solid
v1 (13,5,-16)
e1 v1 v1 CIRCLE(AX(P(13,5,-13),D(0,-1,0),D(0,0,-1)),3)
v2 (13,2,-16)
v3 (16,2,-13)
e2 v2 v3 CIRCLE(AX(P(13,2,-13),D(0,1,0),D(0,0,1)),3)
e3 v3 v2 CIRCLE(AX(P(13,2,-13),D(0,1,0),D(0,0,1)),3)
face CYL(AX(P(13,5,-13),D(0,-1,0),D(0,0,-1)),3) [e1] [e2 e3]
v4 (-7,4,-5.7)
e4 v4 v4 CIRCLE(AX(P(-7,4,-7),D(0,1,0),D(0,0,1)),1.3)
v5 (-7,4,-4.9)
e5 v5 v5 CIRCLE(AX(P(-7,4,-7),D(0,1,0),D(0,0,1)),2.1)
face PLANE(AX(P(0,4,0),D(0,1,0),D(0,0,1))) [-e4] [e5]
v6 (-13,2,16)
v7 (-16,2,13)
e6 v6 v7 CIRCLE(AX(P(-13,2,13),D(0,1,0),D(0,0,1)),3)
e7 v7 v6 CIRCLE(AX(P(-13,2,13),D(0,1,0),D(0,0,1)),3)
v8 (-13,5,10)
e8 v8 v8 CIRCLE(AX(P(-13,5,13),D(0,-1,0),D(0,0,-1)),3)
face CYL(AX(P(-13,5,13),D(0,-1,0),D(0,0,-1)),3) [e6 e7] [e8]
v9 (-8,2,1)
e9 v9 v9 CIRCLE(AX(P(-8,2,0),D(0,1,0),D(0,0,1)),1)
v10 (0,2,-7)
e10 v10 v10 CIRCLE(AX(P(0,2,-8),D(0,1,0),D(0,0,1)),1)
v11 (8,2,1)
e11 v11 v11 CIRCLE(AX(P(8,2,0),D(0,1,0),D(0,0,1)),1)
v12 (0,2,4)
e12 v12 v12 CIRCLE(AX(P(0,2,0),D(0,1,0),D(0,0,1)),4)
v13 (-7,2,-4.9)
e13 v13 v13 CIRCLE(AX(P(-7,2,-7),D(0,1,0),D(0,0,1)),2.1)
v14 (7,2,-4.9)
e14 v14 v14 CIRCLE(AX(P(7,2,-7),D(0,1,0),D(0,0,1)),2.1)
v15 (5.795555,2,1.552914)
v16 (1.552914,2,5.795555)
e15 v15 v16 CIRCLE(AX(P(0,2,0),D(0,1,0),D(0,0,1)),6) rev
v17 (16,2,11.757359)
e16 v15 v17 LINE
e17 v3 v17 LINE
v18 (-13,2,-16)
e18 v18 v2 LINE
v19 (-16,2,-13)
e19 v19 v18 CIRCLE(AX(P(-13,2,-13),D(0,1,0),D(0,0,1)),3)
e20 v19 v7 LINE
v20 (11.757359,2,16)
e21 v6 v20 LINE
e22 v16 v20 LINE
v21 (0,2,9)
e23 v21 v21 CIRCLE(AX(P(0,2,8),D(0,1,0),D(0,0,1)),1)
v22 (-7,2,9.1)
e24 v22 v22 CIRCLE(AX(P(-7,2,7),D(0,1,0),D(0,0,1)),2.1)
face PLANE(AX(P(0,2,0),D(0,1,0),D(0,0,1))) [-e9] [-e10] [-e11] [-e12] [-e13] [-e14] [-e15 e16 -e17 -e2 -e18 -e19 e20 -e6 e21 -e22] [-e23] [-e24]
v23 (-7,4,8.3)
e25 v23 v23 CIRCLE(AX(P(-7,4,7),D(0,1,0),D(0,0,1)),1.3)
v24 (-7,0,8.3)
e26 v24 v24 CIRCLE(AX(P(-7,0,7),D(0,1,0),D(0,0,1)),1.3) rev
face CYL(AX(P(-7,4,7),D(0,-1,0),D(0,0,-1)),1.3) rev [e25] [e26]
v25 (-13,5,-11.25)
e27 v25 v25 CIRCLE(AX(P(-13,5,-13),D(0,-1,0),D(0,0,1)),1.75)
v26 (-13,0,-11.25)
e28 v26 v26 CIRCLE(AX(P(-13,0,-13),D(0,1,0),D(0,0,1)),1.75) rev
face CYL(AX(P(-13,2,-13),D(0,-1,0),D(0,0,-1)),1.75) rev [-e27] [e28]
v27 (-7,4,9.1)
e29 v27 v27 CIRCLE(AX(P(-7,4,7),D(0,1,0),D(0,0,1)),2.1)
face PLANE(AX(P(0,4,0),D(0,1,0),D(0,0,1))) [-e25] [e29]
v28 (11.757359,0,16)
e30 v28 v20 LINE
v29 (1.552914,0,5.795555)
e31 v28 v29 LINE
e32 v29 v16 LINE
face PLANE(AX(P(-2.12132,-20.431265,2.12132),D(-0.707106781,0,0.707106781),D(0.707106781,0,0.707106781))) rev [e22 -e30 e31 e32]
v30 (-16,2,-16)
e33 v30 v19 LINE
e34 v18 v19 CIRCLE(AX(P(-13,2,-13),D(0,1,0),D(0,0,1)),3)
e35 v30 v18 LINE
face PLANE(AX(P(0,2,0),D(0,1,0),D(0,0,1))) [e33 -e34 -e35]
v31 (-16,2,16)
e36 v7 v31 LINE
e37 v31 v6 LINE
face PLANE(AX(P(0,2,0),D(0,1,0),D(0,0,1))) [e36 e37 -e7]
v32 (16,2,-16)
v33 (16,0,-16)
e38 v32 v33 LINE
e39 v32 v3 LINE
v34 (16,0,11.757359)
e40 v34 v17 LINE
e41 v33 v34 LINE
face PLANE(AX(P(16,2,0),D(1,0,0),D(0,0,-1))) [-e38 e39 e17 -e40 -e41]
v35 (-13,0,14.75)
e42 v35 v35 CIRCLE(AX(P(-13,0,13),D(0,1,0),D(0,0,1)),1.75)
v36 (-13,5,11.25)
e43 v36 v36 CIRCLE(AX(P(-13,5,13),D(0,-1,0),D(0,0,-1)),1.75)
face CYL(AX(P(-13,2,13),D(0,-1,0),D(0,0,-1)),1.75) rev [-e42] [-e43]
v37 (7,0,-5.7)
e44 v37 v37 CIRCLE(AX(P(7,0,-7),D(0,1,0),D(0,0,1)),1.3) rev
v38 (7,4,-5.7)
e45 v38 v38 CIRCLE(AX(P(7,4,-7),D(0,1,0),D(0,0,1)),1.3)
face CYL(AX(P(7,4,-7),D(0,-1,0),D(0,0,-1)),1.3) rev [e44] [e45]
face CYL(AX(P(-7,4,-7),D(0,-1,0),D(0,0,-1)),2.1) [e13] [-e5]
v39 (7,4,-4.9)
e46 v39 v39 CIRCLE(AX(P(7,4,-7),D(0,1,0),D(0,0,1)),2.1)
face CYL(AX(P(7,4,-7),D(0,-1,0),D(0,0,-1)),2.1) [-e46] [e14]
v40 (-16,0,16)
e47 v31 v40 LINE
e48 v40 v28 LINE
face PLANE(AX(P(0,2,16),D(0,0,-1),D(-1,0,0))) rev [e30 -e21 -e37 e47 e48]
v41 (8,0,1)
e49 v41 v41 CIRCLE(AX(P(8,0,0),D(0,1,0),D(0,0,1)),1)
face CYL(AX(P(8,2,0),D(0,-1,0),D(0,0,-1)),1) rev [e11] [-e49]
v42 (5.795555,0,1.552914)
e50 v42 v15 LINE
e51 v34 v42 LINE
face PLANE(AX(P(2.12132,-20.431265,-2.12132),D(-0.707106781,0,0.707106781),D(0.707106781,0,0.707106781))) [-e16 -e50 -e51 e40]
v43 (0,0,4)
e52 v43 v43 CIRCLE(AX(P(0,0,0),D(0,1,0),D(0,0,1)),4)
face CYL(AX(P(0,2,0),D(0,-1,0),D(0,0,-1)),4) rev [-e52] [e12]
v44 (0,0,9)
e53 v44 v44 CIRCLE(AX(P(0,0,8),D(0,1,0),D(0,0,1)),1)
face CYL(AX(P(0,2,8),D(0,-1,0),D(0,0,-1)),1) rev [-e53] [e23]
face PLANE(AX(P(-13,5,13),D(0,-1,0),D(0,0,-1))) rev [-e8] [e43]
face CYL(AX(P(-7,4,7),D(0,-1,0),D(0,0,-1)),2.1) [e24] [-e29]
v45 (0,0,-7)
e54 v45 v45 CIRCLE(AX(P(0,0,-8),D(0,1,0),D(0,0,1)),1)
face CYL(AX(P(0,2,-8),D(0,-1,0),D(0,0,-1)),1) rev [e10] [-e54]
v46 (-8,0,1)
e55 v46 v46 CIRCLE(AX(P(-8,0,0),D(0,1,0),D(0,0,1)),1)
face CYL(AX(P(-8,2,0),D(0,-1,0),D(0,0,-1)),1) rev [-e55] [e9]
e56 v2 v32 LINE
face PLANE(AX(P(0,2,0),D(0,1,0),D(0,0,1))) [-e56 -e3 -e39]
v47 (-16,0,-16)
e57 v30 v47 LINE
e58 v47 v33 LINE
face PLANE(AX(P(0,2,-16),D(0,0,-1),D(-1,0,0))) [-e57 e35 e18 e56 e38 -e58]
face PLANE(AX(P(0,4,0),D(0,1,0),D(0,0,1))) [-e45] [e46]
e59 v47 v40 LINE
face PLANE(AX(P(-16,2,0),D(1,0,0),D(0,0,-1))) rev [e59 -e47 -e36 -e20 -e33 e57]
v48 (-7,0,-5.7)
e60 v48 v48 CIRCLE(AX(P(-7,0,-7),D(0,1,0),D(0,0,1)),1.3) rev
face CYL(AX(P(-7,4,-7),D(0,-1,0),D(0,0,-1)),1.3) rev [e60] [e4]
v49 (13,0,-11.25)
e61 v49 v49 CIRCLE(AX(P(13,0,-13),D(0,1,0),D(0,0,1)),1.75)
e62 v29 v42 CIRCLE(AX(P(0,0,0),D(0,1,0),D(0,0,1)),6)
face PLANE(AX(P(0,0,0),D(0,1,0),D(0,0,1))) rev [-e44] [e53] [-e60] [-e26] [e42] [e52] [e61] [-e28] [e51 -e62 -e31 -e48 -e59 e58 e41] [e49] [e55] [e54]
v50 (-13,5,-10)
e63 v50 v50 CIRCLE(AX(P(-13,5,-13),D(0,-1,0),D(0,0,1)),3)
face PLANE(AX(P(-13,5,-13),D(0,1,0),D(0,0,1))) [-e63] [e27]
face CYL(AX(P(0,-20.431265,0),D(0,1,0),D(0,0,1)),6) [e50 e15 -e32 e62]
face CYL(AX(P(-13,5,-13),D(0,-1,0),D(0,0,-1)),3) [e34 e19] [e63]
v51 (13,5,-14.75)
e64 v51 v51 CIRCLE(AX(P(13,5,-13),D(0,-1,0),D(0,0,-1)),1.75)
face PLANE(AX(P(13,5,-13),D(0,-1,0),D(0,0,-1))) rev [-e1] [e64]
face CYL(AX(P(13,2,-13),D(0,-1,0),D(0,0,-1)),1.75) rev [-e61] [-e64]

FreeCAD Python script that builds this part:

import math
import FreeCAD as App
import Part
import Sketcher
from FreeCAD import Vector
Q = App.Units.Quantity

doc = App.newDocument("Part")
body = doc.addObject("PartDesign::Body", "Body")

sketch1 = body.newObject("Sketcher::SketchObject", "Sketch")
sketch1.AttachmentSupport = (doc.getObject("XZ_Plane"), [""])
sketch1.MapMode = "FlatFace"
sketch1.addGeometry([
    Part.LineSegment(Vector(-16, -16, 0), Vector(-16, 16, 0)),
    Part.LineSegment(Vector(-16, 16, 0), Vector(16, 16, 0)),
    Part.LineSegment(Vector(16, 16, 0), Vector(16, -16, 0)),
    Part.LineSegment(Vector(16, -16, 0), Vector(-16, -16, 0)),
    Part.Circle(Vector(-13, 13, 0), Vector(0, 0, 1), 1.8),
    Part.Circle(Vector(0, 8, 0), Vector(0, 0, 1), 1),
    Part.Circle(Vector(13, 13, 0), Vector(0, 0, 1), 1.8),
    Part.Circle(Vector(-8, 0, 0), Vector(0, 0, 1), 1),
    Part.Circle(Vector(-13, -13, 0), Vector(0, 0, 1), 1.8),
    Part.Circle(Vector(0, 0, 0), Vector(0, 0, 1), 4),
    Part.Circle(Vector(8, 0, 0), Vector(0, 0, 1), 1),
    Part.Circle(Vector(0, -8, 0), Vector(0, 0, 1), 1),
    Part.Circle(Vector(13, -13, 0), Vector(0, 0, 1), 1.8),
], False)
sketch1.addConstraint([
    Sketcher.Constraint("Coincident", 0, 2, 1, 1),
    Sketcher.Constraint("Coincident", 1, 2, 2, 1),
    Sketcher.Constraint("Coincident", 2, 2, 3, 1),
    Sketcher.Constraint("Coincident", 3, 2, 0, 1),
    Sketcher.Constraint("Vertical", 0),
    Sketcher.Constraint("Horizontal", 1),
    Sketcher.Constraint("Vertical", 2),
    Sketcher.Constraint("Horizontal", 3),
    Sketcher.Constraint("Coincident", 9, 3, -1, 1),
    Sketcher.Constraint("Equal", 4, 6),
    Sketcher.Constraint("Equal", 5, 7),
    Sketcher.Constraint("Equal", 6, 8),
    Sketcher.Constraint("Equal", 7, 10),
    Sketcher.Constraint("Equal", 10, 11),
    Sketcher.Constraint("Equal", 8, 12),
    Sketcher.Constraint("Symmetric", 6, 3, 8, 3, -1, 1),
    Sketcher.Constraint("Symmetric", 7, 3, 10, 3, -1, 1),
    Sketcher.Constraint("Symmetric", 5, 3, 11, 3, -1, 1),
    Sketcher.Constraint("Symmetric", 4, 3, 12, 3, -1, 1),
    Sketcher.Constraint("Symmetric", 0, 2, 2, 2, -1, 1),
    Sketcher.Constraint("Symmetric", 4, 3, 6, 3, -2),
    Sketcher.Constraint("PointOnObject", 5, 3, -2),
    Sketcher.Constraint("PointOnObject", 7, 3, -1),
    Sketcher.Constraint("Equal", 3, 0),
    Sketcher.Constraint("Diameter", 5, Q("2 mm")),
    Sketcher.Constraint("Diameter", 9, Q("8 mm")),
    Sketcher.Constraint("Diameter", 4, Q("3.5 mm")),
    Sketcher.Constraint("DistanceX", 1, 1, 1, 2, Q("32 mm")),
    Sketcher.Constraint("DistanceX", 4, 3, -1, 1, Q("13 mm")),
    Sketcher.Constraint("DistanceY", -1, 1, 4, 3, Q("13 mm")),
    Sketcher.Constraint("DistanceY", -1, 1, 5, 3, Q("8 mm")),
    Sketcher.Constraint("DistanceX", 7, 3, -1, 1, Q("8 mm")),
])
pad1 = body.newObject("PartDesign::Pad", "Pad")
pad1.Profile = sketch1
pad1.Length = 2
pad1.Reversed = True

sketch2 = body.newObject("Sketcher::SketchObject", "Sketch001")
sketch2.AttachmentSupport = (doc.getObject("XZ_Plane"), [""])
sketch2.MapMode = "FlatFace"
sketch2.AttachmentOffset = App.Placement(Vector(0, 0, -2), App.Rotation())
sketch2.addGeometry([
    Part.Circle(Vector(-7, 7, 0), Vector(0, 0, 1), 2.1),
    Part.Circle(Vector(-7, 7, 0), Vector(0, 0, 1), 1.3),
    Part.Circle(Vector(-7, -7, 0), Vector(0, 0, 1), 2.1),
    Part.Circle(Vector(-7, -7, 0), Vector(0, 0, 1), 1.3),
    Part.Circle(Vector(7, -7, 0), Vector(0, 0, 1), 2.1),
    Part.Circle(Vector(7, -7, 0), Vector(0, 0, 1), 1.3),
], False)
sketch2.addConstraint([
    Sketcher.Constraint("Coincident", 1, 3, 0, 3),
    Sketcher.Constraint("Coincident", 3, 3, 2, 3),
    Sketcher.Constraint("Coincident", 5, 3, 4, 3),
    Sketcher.Constraint("Equal", 0, 2),
    Sketcher.Constraint("Equal", 1, 3),
    Sketcher.Constraint("Equal", 2, 4),
    Sketcher.Constraint("Equal", 3, 5),
    Sketcher.Constraint("Symmetric", 0, 3, 4, 3, -1, 1),
    Sketcher.Constraint("Symmetric", 2, 3, 4, 3, -2),
    Sketcher.Constraint("Diameter", 0, Q("4.2 mm")),
    Sketcher.Constraint("Diameter", 1, Q("2.6 mm")),
    Sketcher.Constraint("DistanceX", 0, 3, -1, 1, Q("7 mm")),
    Sketcher.Constraint("DistanceY", -1, 1, 0, 3, Q("7 mm")),
])
pad2 = body.newObject("PartDesign::Pad", "Pad001")
pad2.Profile = sketch2
pad2.Length = 2
pad2.Reversed = True

sketch3 = body.newObject("Sketcher::SketchObject", "Sketch002")
sketch3.AttachmentSupport = (doc.getObject("XZ_Plane"), [""])
sketch3.MapMode = "FlatFace"
sketch3.addGeometry([
    Part.Circle(Vector(-7, -7, 0), Vector(0, 0, 1), 1.3),
    Part.Circle(Vector(-7, 7, 0), Vector(0, 0, 1), 1.3),
    Part.Circle(Vector(7, -7, 0), Vector(0, 0, 1), 1.3),
    Part.LineSegment(Vector(16, 11.8, 0), Vector(5.8, 1.6, 0)),
    Part.ArcOfCircle(Part.Circle(Vector(0, 0, 0), Vector(0, 0, 1), 6), math.radians(15), math.radians(75)),
    Part.LineSegment(Vector(1.6, 5.8, 0), Vector(11.8, 16, 0)),
    Part.LineSegment(Vector(11.8, 16, 0), Vector(16, 16, 0)),
    Part.LineSegment(Vector(16, 16, 0), Vector(16, 11.8, 0)),
    Part.Circle(Vector(13, 13, 0), Vector(0, 0, 1), 1.8),
], False)
sketch3.addConstraint([
    Sketcher.Constraint("Coincident", 3, 2, 4, 1),
    Sketcher.Constraint("Coincident", 4, 2, 5, 1),
    Sketcher.Constraint("Coincident", 5, 2, 6, 1),
    Sketcher.Constraint("Coincident", 6, 2, 7, 1),
    Sketcher.Constraint("Coincident", 7, 2, 3, 1),
    Sketcher.Constraint("Horizontal", 6),
    Sketcher.Constraint("Vertical", 7),
    Sketcher.Constraint("Coincident", 4, 3, -1, 1),
    Sketcher.Constraint("Equal", 0, 1),
    Sketcher.Constraint("Equal", 1, 2),
    Sketcher.Constraint("Symmetric", 1, 3, 2, 3, -1, 1),
    Sketcher.Constraint("Symmetric", 0, 3, 2, 3, -2),
    Sketcher.Constraint("Parallel", 3, 5),
    Sketcher.Constraint("Equal", 6, 7),
    Sketcher.Constraint("Equal", 3, 5),
    Sketcher.Constraint("Radius", 4, Q("6 mm")),
    Sketcher.Constraint("Diameter", 0, Q("2.6 mm")),
    Sketcher.Constraint("Diameter", 8, Q("3.5 mm")),
    Sketcher.Constraint("Angle", 3, Q("-135 deg")),
    Sketcher.Constraint("DistanceX", 0, 3, -1, 1, Q("7 mm")),
    Sketcher.Constraint("DistanceY", 0, 3, -1, 1, Q("7 mm")),
    Sketcher.Constraint("DistanceX", -1, 1, 8, 3, Q("13 mm")),
    Sketcher.Constraint("DistanceY", -1, 1, 8, 3, Q("13 mm")),
    Sketcher.Constraint("DistanceY", -1, 1, 5, 2, Q("16 mm")),
    Sketcher.Constraint("DistanceX", 6, 1, 6, 2, Q("4.242641 mm")),
])
pocket1 = body.newObject("PartDesign::Pocket", "Pocket")
pocket1.Profile = sketch3
pocket1.Length = 2

sketch4 = body.newObject("Sketcher::SketchObject", "Sketch003")
sketch4.AttachmentSupport = (doc.getObject("XZ_Plane"), [""])
sketch4.MapMode = "FlatFace"
sketch4.addGeometry([
    Part.Circle(Vector(-13, 13, 0), Vector(0, 0, 1), 3),
    Part.Circle(Vector(-13, 13, 0), Vector(0, 0, 1), 1.8),
    Part.Circle(Vector(-13, -13, 0), Vector(0, 0, 1), 3),
    Part.Circle(Vector(-13, -13, 0), Vector(0, 0, 1), 1.8),
    Part.Circle(Vector(13, -13, 0), Vector(0, 0, 1), 3),
    Part.Circle(Vector(13, -13, 0), Vector(0, 0, 1), 1.8),
], False)
sketch4.addConstraint([
    Sketcher.Constraint("Coincident", 1, 3, 0, 3),
    Sketcher.Constraint("Coincident", 3, 3, 2, 3),
    Sketcher.Constraint("Coincident", 5, 3, 4, 3),
    Sketcher.Constraint("Equal", 0, 2),
    Sketcher.Constraint("Equal", 1, 3),
    Sketcher.Constraint("Equal", 2, 4),
    Sketcher.Constraint("Equal", 3, 5),
    Sketcher.Constraint("Symmetric", 0, 3, 4, 3, -1, 1),
    Sketcher.Constraint("Symmetric", 2, 3, 4, 3, -2),
    Sketcher.Constraint("Diameter", 0, Q("6 mm")),
    Sketcher.Constraint("Diameter", 1, Q("3.5 mm")),
    Sketcher.Constraint("DistanceX", 0, 3, -1, 1, Q("13 mm")),
    Sketcher.Constraint("DistanceY", -1, 1, 0, 3, Q("13 mm")),
])
pad3 = body.newObject("PartDesign::Pad", "Pad002")
pad3.Profile = sketch4
pad3.Length = 5
pad3.Reversed = True

doc.recompute()
